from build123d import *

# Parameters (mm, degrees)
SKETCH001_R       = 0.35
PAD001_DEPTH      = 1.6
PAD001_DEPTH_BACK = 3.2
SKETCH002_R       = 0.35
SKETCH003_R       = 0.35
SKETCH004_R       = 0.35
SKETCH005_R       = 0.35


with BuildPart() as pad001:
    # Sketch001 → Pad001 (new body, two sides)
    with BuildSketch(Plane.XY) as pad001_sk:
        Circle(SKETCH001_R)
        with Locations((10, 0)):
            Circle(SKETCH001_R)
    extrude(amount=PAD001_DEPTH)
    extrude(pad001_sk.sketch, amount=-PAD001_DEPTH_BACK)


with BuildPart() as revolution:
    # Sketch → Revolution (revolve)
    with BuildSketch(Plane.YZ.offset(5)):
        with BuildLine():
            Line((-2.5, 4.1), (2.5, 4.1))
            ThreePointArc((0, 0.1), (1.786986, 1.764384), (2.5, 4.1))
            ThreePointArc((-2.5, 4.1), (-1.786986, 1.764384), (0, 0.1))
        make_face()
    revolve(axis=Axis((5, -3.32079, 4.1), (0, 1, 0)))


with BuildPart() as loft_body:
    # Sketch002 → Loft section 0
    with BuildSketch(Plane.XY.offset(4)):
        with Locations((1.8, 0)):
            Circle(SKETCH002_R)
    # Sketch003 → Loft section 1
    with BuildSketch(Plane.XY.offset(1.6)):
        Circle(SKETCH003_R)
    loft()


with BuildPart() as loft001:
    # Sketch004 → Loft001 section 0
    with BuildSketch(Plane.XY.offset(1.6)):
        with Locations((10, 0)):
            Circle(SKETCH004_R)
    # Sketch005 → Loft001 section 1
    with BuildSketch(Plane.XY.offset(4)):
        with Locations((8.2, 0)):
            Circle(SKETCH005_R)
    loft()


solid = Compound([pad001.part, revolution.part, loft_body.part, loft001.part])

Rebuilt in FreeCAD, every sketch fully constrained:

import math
import FreeCAD as App
import Part
import Sketcher
from FreeCAD import Vector
Q = App.Units.Quantity

doc = App.newDocument("Part")
body = doc.addObject("PartDesign::Body", "Body")
body.AllowCompound = True

sketch1 = body.newObject("Sketcher::SketchObject", "Sketch")
sketch1.AttachmentSupport = (doc.getObject("XY_Plane"), [""])
sketch1.MapMode = "FlatFace"
sketch1.addGeometry(Part.Circle(Vector(0, 0, 0), Vector(0, 0, 1), 0.35), False)
sketch1.addGeometry(Part.Circle(Vector(10, 0, 0), Vector(0, 0, 1), 0.35), False)
sketch1.addConstraint(Sketcher.Constraint("Coincident", 0, 3, -1, 1))
sketch1.addConstraint(Sketcher.Constraint("Equal", 0, 1))
sketch1.addConstraint(Sketcher.Constraint("PointOnObject", 1, 3, -1))
sketch1.addConstraint(Sketcher.Constraint("Diameter", 0, Q("0.7 mm")))
sketch1.addConstraint(Sketcher.Constraint("DistanceX", -1, 1, 1, 3, Q("10 mm")))
pad1 = body.newObject("PartDesign::Pad", "Pad")
pad1.Profile = sketch1
pad1.Type = "TwoLengths"
pad1.Length = 1.6
pad1.Length2 = 3.2
body2 = doc.addObject("PartDesign::Body", "Body001")

sketch2 = body2.newObject("Sketcher::SketchObject", "Sketch001")
sketch2.AttachmentSupport = (doc.getObject("YZ_Plane001"), [""])
sketch2.MapMode = "FlatFace"
sketch2.AttachmentOffset = App.Placement(Vector(0, 0, 5), App.Rotation())
sketch2.addGeometry(Part.LineSegment(Vector(2.5, 4.1, 0), Vector(-2.5, 4.1, 0)), False)
sketch2.addGeometry(Part.ArcOfCircle(Part.Circle(Vector(2.2, 4.3, 0), Vector(0, 0, 1), 4.7), math.radians(-178), math.radians(-118)), False)
sketch2.addGeometry(Part.ArcOfCircle(Part.Circle(Vector(-2.2, 4.3, 0), Vector(0, 0, 1), 4.7), math.radians(-62), math.radians(-2)), False)
sketch2.addGeometry(Part.LineSegment(Vector(-2.5, 4.1, 0), Vector(2.5, 4.1, 0)), True)
sketch2.addConstraint(Sketcher.Constraint("Coincident", 0, 2, 1, 1))
sketch2.addConstraint(Sketcher.Constraint("Coincident", 1, 2, 2, 1))
sketch2.addConstraint(Sketcher.Constraint("Coincident", 2, 2, 0, 1))
sketch2.addConstraint(Sketcher.Constraint("Horizontal", 0))
sketch2.addConstraint(Sketcher.Constraint("Horizontal", 3))
sketch2.addConstraint(Sketcher.Constraint("Coincident", 3, 1, 0, 2))
sketch2.addConstraint(Sketcher.Constraint("Equal", 1, 2))
sketch2.addConstraint(Sketcher.Constraint("Symmetric", 1, 3, 2, 3, -2))
sketch2.addConstraint(Sketcher.Constraint("Equal", 0, 3))
sketch2.addConstraint(Sketcher.Constraint("DistanceX", 0, 2, 0, 1, Q("5 mm")))
sketch2.addConstraint(Sketcher.Constraint("DistanceY", 1, 2, 0, 2, Q("4 mm")))
sketch2.addConstraint(Sketcher.Constraint("DistanceY", -1, 1, 0, 2, Q("4.1 mm")))
sketch2.addConstraint(Sketcher.Constraint("DistanceY", -1, 1, 1, 3, Q("4.26 mm")))
revolution = body2.newObject("PartDesign::Revolution", "Revolution")
revolution.Profile = sketch2
revolution.ReferenceAxis = (sketch2, ["Axis0"])
revolution.Angle = 360
body3 = doc.addObject("PartDesign::Body", "Body002")

sketch3 = body3.newObject("Sketcher::SketchObject", "Sketch002")
sketch3.AttachmentSupport = (doc.getObject("XY_Plane002"), [""])
sketch3.MapMode = "FlatFace"
sketch3.AttachmentOffset = App.Placement(Vector(0, 0, 4), App.Rotation())
sketch3.addGeometry(Part.Circle(Vector(1.8, 0, 0), Vector(0, 0, 1), 0.35), False)
sketch3.addConstraint(Sketcher.Constraint("PointOnObject", 0, 3, -1))
sketch3.addConstraint(Sketcher.Constraint("Diameter", 0, Q("0.7 mm")))
sketch3.addConstraint(Sketcher.Constraint("DistanceX", -1, 1, 0, 3, Q("1.8 mm")))

sketch4 = body3.newObject("Sketcher::SketchObject", "Sketch003")
sketch4.AttachmentSupport = (doc.getObject("XY_Plane002"), [""])
sketch4.MapMode = "FlatFace"
sketch4.AttachmentOffset = App.Placement(Vector(0, 0, 1.6), App.Rotation())
sketch4.addGeometry(Part.Circle(Vector(0, 0, 0), Vector(0, 0, 1), 0.35), False)
sketch4.addConstraint(Sketcher.Constraint("Coincident", 0, 3, -1, 1))
sketch4.addConstraint(Sketcher.Constraint("Diameter", 0, Q("0.7 mm")))

additiveloft = body3.newObject("PartDesign::AdditiveLoft", "AdditiveLoft")
additiveloft.Profile = sketch3
additiveloft.Sections = [sketch4]
body4 = doc.addObject("PartDesign::Body", "Body003")

sketch5 = body4.newObject("Sketcher::SketchObject", "Sketch004")
sketch5.AttachmentSupport = (doc.getObject("XY_Plane003"), [""])
sketch5.MapMode = "FlatFace"
sketch5.AttachmentOffset = App.Placement(Vector(0, 0, 1.6), App.Rotation())
sketch5.addGeometry(Part.Circle(Vector(10, 0, 0), Vector(0, 0, 1), 0.35), False)
sketch5.addConstraint(Sketcher.Constraint("PointOnObject", 0, 3, -1))
sketch5.addConstraint(Sketcher.Constraint("Diameter", 0, Q("0.7 mm")))
sketch5.addConstraint(Sketcher.Constraint("DistanceX", -1, 1, 0, 3, Q("10 mm")))

sketch6 = body4.newObject("Sketcher::SketchObject", "Sketch005")
sketch6.AttachmentSupport = (doc.getObject("XY_Plane003"), [""])
sketch6.MapMode = "FlatFace"
sketch6.AttachmentOffset = App.Placement(Vector(0, 0, 4), App.Rotation())
sketch6.addGeometry(Part.Circle(Vector(8.2, 0, 0), Vector(0, 0, 1), 0.35), False)
sketch6.addConstraint(Sketcher.Constraint("PointOnObject", 0, 3, -1))
sketch6.addConstraint(Sketcher.Constraint("Diameter", 0, Q("0.7 mm")))
sketch6.addConstraint(Sketcher.Constraint("DistanceX", -1, 1, 0, 3, Q("8.2 mm")))

additiveloft2 = body4.newObject("PartDesign::AdditiveLoft", "AdditiveLoft001")
additiveloft2.Profile = sketch5
additiveloft2.Sections = [sketch6]

doc.recompute()
